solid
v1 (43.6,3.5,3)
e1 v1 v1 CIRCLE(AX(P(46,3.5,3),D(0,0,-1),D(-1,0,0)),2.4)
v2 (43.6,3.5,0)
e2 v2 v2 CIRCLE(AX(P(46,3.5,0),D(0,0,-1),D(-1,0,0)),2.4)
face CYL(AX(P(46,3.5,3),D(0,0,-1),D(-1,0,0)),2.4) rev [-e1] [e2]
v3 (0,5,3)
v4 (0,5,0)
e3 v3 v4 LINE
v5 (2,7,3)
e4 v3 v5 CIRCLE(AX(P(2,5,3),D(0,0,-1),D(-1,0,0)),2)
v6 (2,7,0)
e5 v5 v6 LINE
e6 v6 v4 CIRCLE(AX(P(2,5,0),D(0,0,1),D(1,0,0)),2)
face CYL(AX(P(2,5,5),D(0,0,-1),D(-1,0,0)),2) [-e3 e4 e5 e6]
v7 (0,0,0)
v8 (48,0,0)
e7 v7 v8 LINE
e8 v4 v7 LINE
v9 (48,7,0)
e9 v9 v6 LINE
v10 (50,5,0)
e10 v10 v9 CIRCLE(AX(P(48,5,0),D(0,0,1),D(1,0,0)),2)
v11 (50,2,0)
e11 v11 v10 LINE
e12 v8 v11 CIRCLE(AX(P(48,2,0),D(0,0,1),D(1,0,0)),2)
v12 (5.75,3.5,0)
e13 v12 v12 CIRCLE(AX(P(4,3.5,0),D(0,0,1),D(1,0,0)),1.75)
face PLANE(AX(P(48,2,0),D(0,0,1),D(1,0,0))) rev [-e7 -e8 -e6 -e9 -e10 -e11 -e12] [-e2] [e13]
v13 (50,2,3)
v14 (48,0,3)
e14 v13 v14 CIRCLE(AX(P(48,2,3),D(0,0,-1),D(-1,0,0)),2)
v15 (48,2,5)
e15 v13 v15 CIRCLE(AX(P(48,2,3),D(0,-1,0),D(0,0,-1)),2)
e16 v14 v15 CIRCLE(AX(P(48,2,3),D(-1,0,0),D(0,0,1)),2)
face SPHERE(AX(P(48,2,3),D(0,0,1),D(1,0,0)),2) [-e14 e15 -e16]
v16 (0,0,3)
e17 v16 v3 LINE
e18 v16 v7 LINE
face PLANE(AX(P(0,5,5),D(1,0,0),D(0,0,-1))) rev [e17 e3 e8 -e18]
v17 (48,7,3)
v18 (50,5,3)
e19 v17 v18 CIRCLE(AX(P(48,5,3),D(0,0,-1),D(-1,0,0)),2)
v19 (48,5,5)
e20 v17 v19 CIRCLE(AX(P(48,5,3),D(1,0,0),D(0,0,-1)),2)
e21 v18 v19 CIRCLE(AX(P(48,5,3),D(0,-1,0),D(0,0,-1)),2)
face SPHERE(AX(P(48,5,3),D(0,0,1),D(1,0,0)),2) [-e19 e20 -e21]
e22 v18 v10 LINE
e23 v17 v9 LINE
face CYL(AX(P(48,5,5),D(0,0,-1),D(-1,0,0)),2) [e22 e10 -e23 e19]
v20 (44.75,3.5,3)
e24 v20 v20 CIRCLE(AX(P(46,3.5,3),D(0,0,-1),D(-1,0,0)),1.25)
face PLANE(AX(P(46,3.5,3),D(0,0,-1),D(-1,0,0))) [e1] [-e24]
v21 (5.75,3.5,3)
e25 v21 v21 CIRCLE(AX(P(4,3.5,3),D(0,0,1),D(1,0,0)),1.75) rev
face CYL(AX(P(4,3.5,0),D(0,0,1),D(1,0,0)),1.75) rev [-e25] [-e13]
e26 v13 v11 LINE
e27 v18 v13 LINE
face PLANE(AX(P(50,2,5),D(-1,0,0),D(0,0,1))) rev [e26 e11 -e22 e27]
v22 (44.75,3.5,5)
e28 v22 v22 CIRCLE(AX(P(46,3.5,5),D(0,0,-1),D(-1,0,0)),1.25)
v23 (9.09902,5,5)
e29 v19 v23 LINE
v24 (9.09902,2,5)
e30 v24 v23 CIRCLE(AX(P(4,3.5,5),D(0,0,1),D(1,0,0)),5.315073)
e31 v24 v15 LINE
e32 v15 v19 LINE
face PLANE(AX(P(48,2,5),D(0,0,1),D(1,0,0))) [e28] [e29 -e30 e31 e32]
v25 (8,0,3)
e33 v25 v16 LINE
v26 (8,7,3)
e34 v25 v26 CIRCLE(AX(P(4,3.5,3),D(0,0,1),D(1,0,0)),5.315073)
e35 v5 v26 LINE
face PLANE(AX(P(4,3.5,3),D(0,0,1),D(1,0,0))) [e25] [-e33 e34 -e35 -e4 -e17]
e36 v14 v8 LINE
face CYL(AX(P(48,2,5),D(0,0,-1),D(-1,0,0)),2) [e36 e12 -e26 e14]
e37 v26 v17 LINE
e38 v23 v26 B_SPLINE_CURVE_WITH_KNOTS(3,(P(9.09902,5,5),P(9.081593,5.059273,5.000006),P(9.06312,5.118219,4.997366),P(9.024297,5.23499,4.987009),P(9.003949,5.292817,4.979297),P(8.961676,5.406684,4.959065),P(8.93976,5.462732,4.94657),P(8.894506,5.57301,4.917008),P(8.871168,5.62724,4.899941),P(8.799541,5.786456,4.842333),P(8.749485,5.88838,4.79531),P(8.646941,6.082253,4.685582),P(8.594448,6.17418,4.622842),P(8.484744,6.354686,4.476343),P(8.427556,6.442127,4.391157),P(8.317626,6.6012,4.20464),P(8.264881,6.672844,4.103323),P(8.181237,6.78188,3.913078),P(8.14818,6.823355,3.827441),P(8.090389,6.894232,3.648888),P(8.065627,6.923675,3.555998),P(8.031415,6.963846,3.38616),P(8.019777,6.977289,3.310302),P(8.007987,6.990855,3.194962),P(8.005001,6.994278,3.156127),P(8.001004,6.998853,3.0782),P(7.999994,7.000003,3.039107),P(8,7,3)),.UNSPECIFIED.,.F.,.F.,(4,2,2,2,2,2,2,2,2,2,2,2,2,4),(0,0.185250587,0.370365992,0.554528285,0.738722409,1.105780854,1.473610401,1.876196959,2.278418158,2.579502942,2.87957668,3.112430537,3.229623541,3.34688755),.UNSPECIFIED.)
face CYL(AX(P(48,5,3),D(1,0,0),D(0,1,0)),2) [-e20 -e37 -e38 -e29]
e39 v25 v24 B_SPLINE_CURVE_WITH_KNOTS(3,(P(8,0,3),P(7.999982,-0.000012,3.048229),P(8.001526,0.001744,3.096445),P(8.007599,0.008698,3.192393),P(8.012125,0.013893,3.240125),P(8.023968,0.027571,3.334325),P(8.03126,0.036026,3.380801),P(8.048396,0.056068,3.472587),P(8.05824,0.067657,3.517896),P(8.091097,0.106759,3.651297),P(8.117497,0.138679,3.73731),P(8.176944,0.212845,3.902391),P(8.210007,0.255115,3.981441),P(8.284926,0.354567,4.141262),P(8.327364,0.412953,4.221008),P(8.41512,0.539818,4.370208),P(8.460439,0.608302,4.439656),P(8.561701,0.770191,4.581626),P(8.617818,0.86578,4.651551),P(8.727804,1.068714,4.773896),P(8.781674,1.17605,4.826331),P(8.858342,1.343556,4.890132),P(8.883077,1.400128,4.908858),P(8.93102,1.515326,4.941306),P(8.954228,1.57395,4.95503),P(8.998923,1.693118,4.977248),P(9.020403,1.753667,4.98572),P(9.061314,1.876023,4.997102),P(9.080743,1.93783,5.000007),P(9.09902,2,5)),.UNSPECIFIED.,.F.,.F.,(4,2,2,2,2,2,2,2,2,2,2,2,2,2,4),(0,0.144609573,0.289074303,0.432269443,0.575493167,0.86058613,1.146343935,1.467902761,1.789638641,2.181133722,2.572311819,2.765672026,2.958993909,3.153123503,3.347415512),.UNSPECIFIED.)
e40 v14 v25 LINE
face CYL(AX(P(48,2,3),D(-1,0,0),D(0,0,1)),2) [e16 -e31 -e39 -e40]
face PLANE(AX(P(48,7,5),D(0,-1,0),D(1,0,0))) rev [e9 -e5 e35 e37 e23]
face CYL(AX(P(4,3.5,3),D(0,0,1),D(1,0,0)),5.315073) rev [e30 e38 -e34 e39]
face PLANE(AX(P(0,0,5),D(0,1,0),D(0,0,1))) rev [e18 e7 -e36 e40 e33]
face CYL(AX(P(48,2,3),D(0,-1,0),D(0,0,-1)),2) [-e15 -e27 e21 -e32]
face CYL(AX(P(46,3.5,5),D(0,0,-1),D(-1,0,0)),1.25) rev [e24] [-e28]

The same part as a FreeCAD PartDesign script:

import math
import FreeCAD as App
import Part
import Sketcher

V = App.Vector
Q = App.Units.Quantity


def edges_at(feature, points):
    """Names of the edges that pass closest to the given points."""
    edges = feature.Shape.Edges
    near = lambda p: min(range(len(edges)), key=lambda i: edges[i].distToShape(Part.Vertex(*p))[0])
    return sorted({f"Edge{near(p) + 1}" for p in points})

doc = App.newDocument("Part")
params = doc.addObject("Spreadsheet::Sheet", "Params")
for row, (alias, value) in enumerate([
    ("sketch1_radius", "2 mm"),
    ("sketch1_width", "48 mm"),
    ("sketch1_height", "3 mm"),
    ("pad1_length", "5 mm"),
    ("sketch2_diameter", "4.8 mm"),
    ("pocket1_length", "3 mm"),
    ("sketch3_diameter", "2.5 mm"),
    ("fillet_radius", "2 mm"),
    ("sketch4_diameter", "3.5 mm"),
    ("pocket4_length", "2 mm"),
], start=1):
    params.set(f"A{row}", alias)
    params.set(f"B{row}", "=" + value)
    params.setAlias(f"B{row}", alias)

body = doc.addObject("PartDesign::Body", "Body")

sketch1 = body.newObject("Sketcher::SketchObject", "Sketch")
sketch1.AttachmentSupport = (doc.getObject("XY_Plane"), [""])
sketch1.MapMode = "FlatFace"
sketch1.addGeometry([
    Part.LineSegment(V(0, 0, 0), V(48, 0, 0)),
    Part.ArcOfCircle(Part.Circle(V(48, 2, 0), V(0, 0, 1), 2), math.radians(-90), math.radians(0)),
    Part.LineSegment(V(50, 2, 0), V(50, 5, 0)),
    Part.ArcOfCircle(Part.Circle(V(48, 5, 0), V(0, 0, 1), 2), math.radians(0), math.radians(90)),
    Part.LineSegment(V(48, 7, 0), V(2, 7, 0)),
    Part.ArcOfCircle(Part.Circle(V(2, 5, 0), V(0, 0, 1), 2), math.radians(90), math.radians(180)),
    Part.LineSegment(V(0, 5, 0), V(0, 0, 0)),
], False)
sketch1.addConstraint([
    Sketcher.Constraint("Tangent", 0, 2, 1, 1),
    Sketcher.Constraint("Tangent", 1, 2, 2, 1),
    Sketcher.Constraint("Tangent", 2, 2, 3, 1),
    Sketcher.Constraint("Tangent", 3, 2, 4, 1),
    Sketcher.Constraint("Tangent", 4, 2, 5, 1),
    Sketcher.Constraint("Tangent", 5, 2, 6, 1),
    Sketcher.Constraint("Coincident", 6, 2, 0, 1),
    Sketcher.Constraint("Horizontal", 0),
    Sketcher.Constraint("Vertical", 2),
    Sketcher.Constraint("Horizontal", 4),
    Sketcher.Constraint("Vertical", 6),
    Sketcher.Constraint("Coincident", 6, 2, -1, 1),
    Sketcher.Constraint("Equal", 1, 3),
    Sketcher.Constraint("Equal", 3, 5),
    Sketcher.Constraint("Radius", 1, Q("2 mm")),
    Sketcher.Constraint("DistanceX", 0, 1, 0, 2, Q("48 mm")),
    Sketcher.Constraint("DistanceY", 2, 1, 2, 2, Q("3 mm")),
])
sketch1.setExpression("Constraints[14]", "Params.sketch1_radius")
sketch1.setExpression("Constraints[15]", "Params.sketch1_width")
sketch1.setExpression("Constraints[16]", "Params.sketch1_height")
pad1 = body.newObject("PartDesign::Pad", "Pad")
pad1.Profile = sketch1
pad1.setExpression("Length", "Params.pad1_length")

sketch2 = body.newObject("Sketcher::SketchObject", "Sketch001")
sketch2.AttachmentSupport = (doc.getObject("XY_Plane"), [""])
sketch2.MapMode = "FlatFace"
sketch2.addGeometry(Part.Circle(V(46, 3.5, 0), V(0, 0, 1), 2.4), False)
sketch2.addConstraint([
    Sketcher.Constraint("Diameter", 0, Q("4.8 mm")),
    Sketcher.Constraint("DistanceX", -1, 1, 0, 3, Q("46 mm")),
    Sketcher.Constraint("DistanceY", -1, 1, 0, 3, Q("3.5 mm")),
])
sketch2.setExpression("Constraints[0]", "Params.sketch2_diameter")
pocket1 = body.newObject("PartDesign::Pocket", "Pocket")
pocket1.Profile = sketch2
pocket1.setExpression("Length", "Params.pocket1_length")
pocket1.Reversed = True

sketch3 = body.newObject("Sketcher::SketchObject", "Sketch002")
sketch3.AttachmentSupport = (doc.getObject("XY_Plane"), [""])
sketch3.MapMode = "FlatFace"
sketch3.AttachmentOffset = App.Placement(V(0, 0, 3), App.Rotation())
sketch3.addGeometry(Part.Circle(V(46, 3.5, 0), V(0, 0, 1), 1.2), False)
sketch3.addConstraint([
    Sketcher.Constraint("Diameter", 0, Q("2.5 mm")),
    Sketcher.Constraint("DistanceX", -1, 1, 0, 3, Q("46 mm")),
    Sketcher.Constraint("DistanceY", -1, 1, 0, 3, Q("3.5 mm")),
])
sketch3.setExpression("Constraints[0]", "Params.sketch3_diameter")
pocket2 = body.newObject("PartDesign::Pocket", "Pocket001")
pocket2.Profile = sketch3
pocket2.Type = "ThroughAll"
pocket2.Reversed = True
doc.recompute()

fillet = body.newObject("PartDesign::Fillet", "Fillet")
fillet.Base = (pocket2, edges_at(pocket2, [
    (49.414, 0.586, 5),
    (50, 3.5, 5),
    (49.414, 6.414, 5),
    (25, 7, 5),
    (0.586, 6.414, 5),
    (0, 2.5, 5),
    (24, 0, 5),
]))
fillet.setExpression("Radius", "Params.fillet_radius")

sketch4 = body.newObject("Sketcher::SketchObject", "Sketch003")
sketch4.AttachmentSupport = (doc.getObject("XY_Plane"), [""])
sketch4.MapMode = "FlatFace"
sketch4.AttachmentOffset = App.Placement(V(0, 0, 5), App.Rotation())
sketch4.addGeometry(Part.Circle(V(4, 3.5, 0), V(0, 0, 1), 1.8), False)
sketch4.addConstraint([
    Sketcher.Constraint("Diameter", 0, Q("3.5 mm")),
    Sketcher.Constraint("DistanceX", -1, 1, 0, 3, Q("4 mm")),
    Sketcher.Constraint("DistanceY", -1, 1, 0, 3, Q("3.5 mm")),
])
sketch4.setExpression("Constraints[0]", "Params.sketch4_diameter")
pocket3 = body.newObject("PartDesign::Pocket", "Pocket002")
pocket3.Profile = sketch4
pocket3.Type = "ThroughAll"

sketch5 = body.newObject("Sketcher::SketchObject", "Sketch004")
sketch5.AttachmentSupport = (doc.getObject("XY_Plane"), [""])
sketch5.MapMode = "FlatFace"
sketch5.AttachmentOffset = App.Placement(V(0, 0, 5), App.Rotation())
sketch5.addGeometry(Part.Circle(V(4, 4, 0), V(0, 0, 1), 5), False)
sketch5.addConstraint([
    Sketcher.Constraint("DistanceX", -1, 1, 0, 3, Q("4 mm")),
    Sketcher.Constraint("DistanceY", -1, 1, 0, 3, Q("3.5 mm")),
    Sketcher.Constraint("Diameter", 0, Q("10.630146 mm")),
])
pocket4 = body.newObject("PartDesign::Pocket", "Pocket003")
pocket4.Profile = sketch5
pocket4.setExpression("Length", "Params.pocket4_length")

doc.recompute()
